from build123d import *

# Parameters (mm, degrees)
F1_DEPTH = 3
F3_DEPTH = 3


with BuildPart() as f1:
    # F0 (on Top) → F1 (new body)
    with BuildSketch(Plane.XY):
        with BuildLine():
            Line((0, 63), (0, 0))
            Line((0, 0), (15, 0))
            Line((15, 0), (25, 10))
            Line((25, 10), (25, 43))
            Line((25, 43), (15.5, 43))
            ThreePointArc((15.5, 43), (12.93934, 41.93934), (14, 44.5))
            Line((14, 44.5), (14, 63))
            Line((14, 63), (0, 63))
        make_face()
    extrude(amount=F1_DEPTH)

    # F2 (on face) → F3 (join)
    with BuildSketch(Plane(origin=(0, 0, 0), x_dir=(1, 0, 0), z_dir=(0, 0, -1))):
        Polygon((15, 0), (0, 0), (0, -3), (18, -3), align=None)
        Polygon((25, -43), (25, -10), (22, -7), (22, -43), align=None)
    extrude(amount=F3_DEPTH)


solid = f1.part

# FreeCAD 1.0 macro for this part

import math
import FreeCAD as App
import Part
import Sketcher
Q = App.Units.Quantity


def add_polygon(sketch, points):
    """Adds a closed chain of lines whose ends are joined by coincident constraints."""
    first, n = sketch.GeometryCount, len(points)
    for a, b in zip(points, points[1:] + points[:1]):
        sketch.addGeometry(Part.LineSegment(App.Vector(*a, 0), App.Vector(*b, 0)), False)
    for i in range(n):
        sketch.addConstraint(Sketcher.Constraint("Coincident", first + i, 2, first + (i + 1) % n, 1))

doc = App.newDocument("Part")
body = doc.addObject("PartDesign::Body", "Body")

# Sketch on XY plane
sketch1 = doc.addObject("Sketcher::SketchObject", "Sketch")
body.addObject(sketch1)
sketch1.AttachmentSupport = (doc.XY_Plane, [""])
sketch1.MapMode = "FlatFace"
sketch1.addGeometry([
    Part.LineSegment(App.Vector(0, 63, 0), App.Vector(0, 0, 0)),  # 0
    Part.LineSegment(App.Vector(0, 0, 0), App.Vector(15, 0, 0)),  # 1
    Part.LineSegment(App.Vector(15, 0, 0), App.Vector(25, 10, 0)),  # 2
    Part.LineSegment(App.Vector(25, 10, 0), App.Vector(25, 43, 0)),  # 3
    Part.LineSegment(App.Vector(25, 43, 0), App.Vector(15.5, 43, 0)),  # 4
    Part.ArcOfCircle(Part.Circle(App.Vector(14, 43, 0), App.Vector(0, 0, 1), 1.5), math.radians(90.000004), math.radians(359.999996)),  # 5
    Part.LineSegment(App.Vector(14, 44.5, 0), App.Vector(14, 63, 0)),  # 6
    Part.LineSegment(App.Vector(14, 63, 0), App.Vector(0, 63, 0)),  # 7
], False)
sketch1.addConstraint([
    Sketcher.Constraint("Coincident", 0, 2, 1, 1),
    Sketcher.Constraint("Coincident", 1, 2, 2, 1),
    Sketcher.Constraint("Coincident", 2, 2, 3, 1),
    Sketcher.Constraint("Coincident", 3, 2, 4, 1),
    Sketcher.Constraint("Coincident", 4, 2, 5, 2),
    Sketcher.Constraint("Coincident", 5, 1, 6, 1),
    Sketcher.Constraint("Coincident", 6, 2, 7, 1),
    Sketcher.Constraint("Coincident", 7, 2, 0, 1),
    Sketcher.Constraint("Vertical", 0),
    Sketcher.Constraint("Horizontal", 1),
    Sketcher.Constraint("Vertical", 3),
    Sketcher.Constraint("Horizontal", 4),
    Sketcher.Constraint("Vertical", 6),
    Sketcher.Constraint("Horizontal", 7),
    Sketcher.Constraint("Coincident", 0, 2, -1, 1),
    Sketcher.Constraint("Horizontal", 5, 3, 3, 2),
    Sketcher.Constraint("Radius", 5, 1.5),
    Sketcher.Constraint("DistanceX", 1, 1, 1, 2, 15.0),
    Sketcher.Constraint("DistanceX", 7, 2, 7, 1, 14.0),
    Sketcher.Constraint("DistanceY", 0, 2, 0, 1, 63.0),
    Sketcher.Constraint("DistanceY", 3, 1, 3, 2, 33.0),
    Sketcher.Constraint("Angle", 2, Q("45 deg")),
    Sketcher.Constraint("DistanceX", 4, 2, 4, 1, 9.5),
    Sketcher.Constraint("DistanceY", 6, 1, 6, 2, 18.5),
])
pad1 = doc.addObject("PartDesign::Pad", "Pad")
body.addObject(pad1)
pad1.Profile = sketch1
pad1.Length = 3

# Sketch on XY plane
sketch2 = doc.addObject("Sketcher::SketchObject", "Sketch001")
body.addObject(sketch2)
sketch2.AttachmentSupport = (doc.XY_Plane, [""])
sketch2.MapMode = "FlatFace"
add_polygon(sketch2, [(15, 0), (0, 0), (0, 3), (18, 3)])  # lines 0-3
add_polygon(sketch2, [(25, 43), (25, 10), (22, 7), (22, 43)])  # lines 4-7
sketch2.addConstraint([
    Sketcher.Constraint("Horizontal", 0),
    Sketcher.Constraint("Vertical", 1),
    Sketcher.Constraint("Horizontal", 2),
    Sketcher.Constraint("Vertical", 4),
    Sketcher.Constraint("Vertical", 6),
    Sketcher.Constraint("Horizontal", 7),
    Sketcher.Constraint("Coincident", 0, 2, -1, 1),
    Sketcher.Constraint("Parallel", 3, 5),
    Sketcher.Constraint("Equal", 7, 1),
    Sketcher.Constraint("Equal", 3, 5),
    Sketcher.Constraint("DistanceX", 0, 2, 0, 1, 15.0),
    Sketcher.Constraint("DistanceX", 2, 1, 2, 2, 18.0),
    Sketcher.Constraint("DistanceY", 4, 2, 4, 1, 33.0),
    Sketcher.Constraint("DistanceX", -1, 1, 4, 2, 25.0),
    Sketcher.Constraint("DistanceY", -1, 1, 4, 2, 10.0),
])
pad2 = doc.addObject("PartDesign::Pad", "Pad001")
body.addObject(pad2)
pad2.Profile = sketch2
pad2.Length = 3
pad2.Reversed = True

doc.recompute()
